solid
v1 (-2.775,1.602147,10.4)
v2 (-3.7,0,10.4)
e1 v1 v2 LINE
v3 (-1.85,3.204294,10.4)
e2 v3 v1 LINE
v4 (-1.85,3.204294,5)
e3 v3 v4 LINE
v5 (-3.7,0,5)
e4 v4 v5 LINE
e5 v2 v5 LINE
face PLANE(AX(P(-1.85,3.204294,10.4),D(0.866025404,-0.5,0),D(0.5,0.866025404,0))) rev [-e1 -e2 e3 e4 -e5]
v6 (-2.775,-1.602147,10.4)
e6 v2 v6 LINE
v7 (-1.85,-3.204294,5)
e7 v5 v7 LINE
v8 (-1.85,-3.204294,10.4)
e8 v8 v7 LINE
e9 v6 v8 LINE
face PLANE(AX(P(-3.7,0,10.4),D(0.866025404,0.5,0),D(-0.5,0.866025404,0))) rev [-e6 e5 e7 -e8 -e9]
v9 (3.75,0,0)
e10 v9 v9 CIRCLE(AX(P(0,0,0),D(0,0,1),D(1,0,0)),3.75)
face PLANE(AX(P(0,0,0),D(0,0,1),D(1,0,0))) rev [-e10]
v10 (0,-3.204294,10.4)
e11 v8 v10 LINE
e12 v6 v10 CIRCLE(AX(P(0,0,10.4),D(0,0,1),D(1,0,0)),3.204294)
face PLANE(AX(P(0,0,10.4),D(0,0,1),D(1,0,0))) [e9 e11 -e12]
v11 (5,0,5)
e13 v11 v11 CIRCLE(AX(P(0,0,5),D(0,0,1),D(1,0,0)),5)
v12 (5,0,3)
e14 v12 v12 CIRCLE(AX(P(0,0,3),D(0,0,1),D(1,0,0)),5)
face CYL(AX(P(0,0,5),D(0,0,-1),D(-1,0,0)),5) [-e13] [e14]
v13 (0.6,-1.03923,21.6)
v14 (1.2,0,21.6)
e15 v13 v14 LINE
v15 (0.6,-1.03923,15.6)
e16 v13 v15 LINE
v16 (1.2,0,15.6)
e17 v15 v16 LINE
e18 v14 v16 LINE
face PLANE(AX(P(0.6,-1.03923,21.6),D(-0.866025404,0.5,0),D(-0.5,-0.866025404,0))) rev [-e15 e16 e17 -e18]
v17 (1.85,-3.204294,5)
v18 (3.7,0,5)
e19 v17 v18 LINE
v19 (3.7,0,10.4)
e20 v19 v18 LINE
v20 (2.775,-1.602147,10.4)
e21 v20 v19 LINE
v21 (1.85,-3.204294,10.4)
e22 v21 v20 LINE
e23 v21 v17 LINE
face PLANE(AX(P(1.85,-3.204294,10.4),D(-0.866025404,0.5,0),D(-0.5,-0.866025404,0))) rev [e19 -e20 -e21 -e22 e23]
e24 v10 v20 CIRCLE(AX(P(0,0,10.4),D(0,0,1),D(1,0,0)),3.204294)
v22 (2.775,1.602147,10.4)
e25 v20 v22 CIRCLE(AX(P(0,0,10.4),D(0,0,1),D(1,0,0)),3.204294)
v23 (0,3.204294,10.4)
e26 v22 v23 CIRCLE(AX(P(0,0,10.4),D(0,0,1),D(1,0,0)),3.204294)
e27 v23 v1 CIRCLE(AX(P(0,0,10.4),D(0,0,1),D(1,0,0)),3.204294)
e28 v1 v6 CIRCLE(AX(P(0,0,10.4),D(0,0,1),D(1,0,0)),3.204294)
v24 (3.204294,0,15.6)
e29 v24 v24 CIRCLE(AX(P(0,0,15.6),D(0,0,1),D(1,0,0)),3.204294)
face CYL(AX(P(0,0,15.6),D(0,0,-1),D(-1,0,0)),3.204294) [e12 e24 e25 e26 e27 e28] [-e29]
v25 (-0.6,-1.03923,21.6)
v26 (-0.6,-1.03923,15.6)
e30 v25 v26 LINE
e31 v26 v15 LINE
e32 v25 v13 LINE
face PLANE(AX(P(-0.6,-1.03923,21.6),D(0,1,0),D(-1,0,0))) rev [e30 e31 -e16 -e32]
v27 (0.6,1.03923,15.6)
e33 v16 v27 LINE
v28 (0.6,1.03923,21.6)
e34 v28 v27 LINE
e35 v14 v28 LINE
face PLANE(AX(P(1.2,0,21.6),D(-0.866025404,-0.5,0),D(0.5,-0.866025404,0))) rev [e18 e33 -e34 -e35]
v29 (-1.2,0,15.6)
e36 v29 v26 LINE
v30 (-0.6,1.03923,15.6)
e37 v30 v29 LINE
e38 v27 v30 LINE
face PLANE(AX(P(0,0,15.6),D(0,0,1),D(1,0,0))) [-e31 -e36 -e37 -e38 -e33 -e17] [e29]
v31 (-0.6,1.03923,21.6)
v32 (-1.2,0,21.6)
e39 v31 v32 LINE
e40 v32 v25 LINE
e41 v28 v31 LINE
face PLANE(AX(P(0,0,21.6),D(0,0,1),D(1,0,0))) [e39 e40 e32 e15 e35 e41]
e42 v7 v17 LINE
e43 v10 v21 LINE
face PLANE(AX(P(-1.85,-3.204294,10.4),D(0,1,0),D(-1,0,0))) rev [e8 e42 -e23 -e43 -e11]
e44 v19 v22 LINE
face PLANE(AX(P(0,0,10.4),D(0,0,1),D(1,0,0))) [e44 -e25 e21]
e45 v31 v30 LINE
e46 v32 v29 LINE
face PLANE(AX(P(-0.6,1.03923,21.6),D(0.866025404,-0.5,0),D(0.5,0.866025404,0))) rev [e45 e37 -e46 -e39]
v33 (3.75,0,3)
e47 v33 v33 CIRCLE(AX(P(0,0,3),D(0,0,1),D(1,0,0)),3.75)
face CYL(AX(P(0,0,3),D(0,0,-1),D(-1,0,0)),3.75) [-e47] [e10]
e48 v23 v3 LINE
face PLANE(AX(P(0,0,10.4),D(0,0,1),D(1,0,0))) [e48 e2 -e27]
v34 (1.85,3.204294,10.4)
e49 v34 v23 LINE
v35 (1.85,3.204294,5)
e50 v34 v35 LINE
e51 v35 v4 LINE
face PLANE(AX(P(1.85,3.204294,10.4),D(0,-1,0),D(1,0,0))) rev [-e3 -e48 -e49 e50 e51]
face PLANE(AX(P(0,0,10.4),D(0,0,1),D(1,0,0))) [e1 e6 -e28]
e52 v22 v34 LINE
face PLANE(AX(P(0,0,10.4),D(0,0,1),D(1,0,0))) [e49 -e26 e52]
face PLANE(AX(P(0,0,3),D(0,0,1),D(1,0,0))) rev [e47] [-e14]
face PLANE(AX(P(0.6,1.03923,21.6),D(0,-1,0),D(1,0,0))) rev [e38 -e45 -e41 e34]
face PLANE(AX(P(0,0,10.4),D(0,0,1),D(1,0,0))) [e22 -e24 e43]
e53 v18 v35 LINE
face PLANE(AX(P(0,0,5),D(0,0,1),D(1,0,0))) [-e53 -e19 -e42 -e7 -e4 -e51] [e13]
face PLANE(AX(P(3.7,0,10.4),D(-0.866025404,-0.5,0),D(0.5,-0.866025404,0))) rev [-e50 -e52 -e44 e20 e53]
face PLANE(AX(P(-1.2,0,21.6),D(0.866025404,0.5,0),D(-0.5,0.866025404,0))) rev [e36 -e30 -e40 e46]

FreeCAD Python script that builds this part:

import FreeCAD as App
import Part
import Sketcher
Q = App.Units.Quantity

doc = App.newDocument("Part")
body = doc.addObject("PartDesign::Body", "Body")

# Sketch on XY plane
sketch1 = body.newObject("Sketcher::SketchObject", "Sketch")
sketch1.AttachmentSupport = (doc.getObject("XY_Plane"), [""])
sketch1.MapMode = "FlatFace"
sketch1.addGeometry(Part.Circle(App.Vector(0, 0, 0), App.Vector(0, 0, 1), 3.8), False)
sketch1.addConstraint(Sketcher.Constraint("Coincident", 0, 3, -1, 1))
sketch1.addConstraint(Sketcher.Constraint("Diameter", 0, 7.5))
pad1 = body.newObject("PartDesign::Pad", "Pad")
pad1.Profile = sketch1
pad1.Length = 3

# Sketch on XY plane
sketch2 = body.newObject("Sketcher::SketchObject", "Sketch001")
sketch2.AttachmentSupport = (doc.getObject("XY_Plane"), [""])
sketch2.MapMode = "FlatFace"
sketch2.AttachmentOffset = App.Placement(App.Vector(0, 0, 3), App.Rotation())
sketch2.addGeometry(Part.Circle(App.Vector(0, 0, 0), App.Vector(0, 0, 1), 5), False)
sketch2.addConstraint(Sketcher.Constraint("Coincident", 0, 3, -1, 1))
sketch2.addConstraint(Sketcher.Constraint("Diameter", 0, 10.0))
pad2 = body.newObject("PartDesign::Pad", "Pad001")
pad2.Profile = sketch2
pad2.Length = 2

# Sketch on XY plane
sketch3 = body.newObject("Sketcher::SketchObject", "Sketch002")
sketch3.AttachmentSupport = (doc.getObject("XY_Plane"), [""])
sketch3.MapMode = "FlatFace"
sketch3.AttachmentOffset = App.Placement(App.Vector(0, 0, 5), App.Rotation())
sketch3.addGeometry(Part.LineSegment(App.Vector(3.7, 0, 0), App.Vector(1.9, 3.2, 0)), False)
sketch3.addGeometry(Part.LineSegment(App.Vector(1.9, 3.2, 0), App.Vector(-1.9, 3.2, 0)), False)
sketch3.addGeometry(Part.LineSegment(App.Vector(-1.9, 3.2, 0), App.Vector(-3.7, 0, 0)), False)
sketch3.addGeometry(Part.LineSegment(App.Vector(-3.7, 0, 0), App.Vector(-1.9, -3.2, 0)), False)
sketch3.addGeometry(Part.LineSegment(App.Vector(-1.9, -3.2, 0), App.Vector(1.9, -3.2, 0)), False)
sketch3.addGeometry(Part.LineSegment(App.Vector(1.9, -3.2, 0), App.Vector(3.7, 0, 0)), False)
sketch3.addConstraint(Sketcher.Constraint("Coincident", 0, 2, 1, 1))
sketch3.addConstraint(Sketcher.Constraint("Coincident", 1, 2, 2, 1))
sketch3.addConstraint(Sketcher.Constraint("Coincident", 2, 2, 3, 1))
sketch3.addConstraint(Sketcher.Constraint("Coincident", 3, 2, 4, 1))
sketch3.addConstraint(Sketcher.Constraint("Coincident", 4, 2, 5, 1))
sketch3.addConstraint(Sketcher.Constraint("Coincident", 5, 2, 0, 1))
sketch3.addConstraint(Sketcher.Constraint("Horizontal", 1))
sketch3.addConstraint(Sketcher.Constraint("Horizontal", 4))
sketch3.addConstraint(Sketcher.Constraint("Symmetric", 0, 2, 3, 2, -1, 1))
sketch3.addConstraint(Sketcher.Constraint("Symmetric", 2, 2, 5, 2, -1, 1))
sketch3.addConstraint(Sketcher.Constraint("PointOnObject", 2, 2, -1))
sketch3.addConstraint(Sketcher.Constraint("Parallel", 2, 5))
sketch3.addConstraint(Sketcher.Constraint("Vertical", 1, 2, 3, 2))
sketch3.addConstraint(Sketcher.Constraint("Angle", 0, Q("120 deg")))
sketch3.addConstraint(Sketcher.Constraint("DistanceX", 1, 2, 1, 1, 3.7))
sketch3.addConstraint(Sketcher.Constraint("Distance", 0, 3.7))
pad3 = body.newObject("PartDesign::Pad", "Pad002")
pad3.Profile = sketch3
pad3.Length = 5.4

# Sketch on XY plane
sketch4 = body.newObject("Sketcher::SketchObject", "Sketch003")
sketch4.AttachmentSupport = (doc.getObject("XY_Plane"), [""])
sketch4.MapMode = "FlatFace"
sketch4.AttachmentOffset = App.Placement(App.Vector(0, 0, 10.4), App.Rotation())
sketch4.addGeometry(Part.Circle(App.Vector(0, 0, 0), App.Vector(0, 0, 1), 3.2), False)
sketch4.addConstraint(Sketcher.Constraint("Coincident", 0, 3, -1, 1))
sketch4.addConstraint(Sketcher.Constraint("Diameter", 0, 6.408588))
pad4 = body.newObject("PartDesign::Pad", "Pad003")
pad4.Profile = sketch4
pad4.Length = 5.2

# Sketch on XY plane
sketch5 = body.newObject("Sketcher::SketchObject", "Sketch004")
sketch5.AttachmentSupport = (doc.getObject("XY_Plane"), [""])
sketch5.MapMode = "FlatFace"
sketch5.AttachmentOffset = App.Placement(App.Vector(0, 0, 15.6), App.Rotation())
sketch5.addGeometry(Part.LineSegment(App.Vector(1.2, 0, 0), App.Vector(0.6, 1, 0)), False)
sketch5.addGeometry(Part.LineSegment(App.Vector(0.6, 1, 0), App.Vector(-0.6, 1, 0)), False)
sketch5.addGeometry(Part.LineSegment(App.Vector(-0.6, 1, 0), App.Vector(-1.2, 0, 0)), False)
sketch5.addGeometry(Part.LineSegment(App.Vector(-1.2, 0, 0), App.Vector(-0.6, -1, 0)), False)
sketch5.addGeometry(Part.LineSegment(App.Vector(-0.6, -1, 0), App.Vector(0.6, -1, 0)), False)
sketch5.addGeometry(Part.LineSegment(App.Vector(0.6, -1, 0), App.Vector(1.2, 0, 0)), False)
sketch5.addConstraint(Sketcher.Constraint("Coincident", 0, 2, 1, 1))
sketch5.addConstraint(Sketcher.Constraint("Coincident", 1, 2, 2, 1))
sketch5.addConstraint(Sketcher.Constraint("Coincident", 2, 2, 3, 1))
sketch5.addConstraint(Sketcher.Constraint("Coincident", 3, 2, 4, 1))
sketch5.addConstraint(Sketcher.Constraint("Coincident", 4, 2, 5, 1))
sketch5.addConstraint(Sketcher.Constraint("Coincident", 5, 2, 0, 1))
sketch5.addConstraint(Sketcher.Constraint("Horizontal", 1))
sketch5.addConstraint(Sketcher.Constraint("Horizontal", 4))
sketch5.addConstraint(Sketcher.Constraint("Symmetric", 0, 2, 3, 2, -1, 1))
sketch5.addConstraint(Sketcher.Constraint("Symmetric", 2, 2, 5, 2, -1, 1))
sketch5.addConstraint(Sketcher.Constraint("PointOnObject", 2, 2, -1))
sketch5.addConstraint(Sketcher.Constraint("Parallel", 2, 5))
sketch5.addConstraint(Sketcher.Constraint("Vertical", 1, 2, 3, 2))
sketch5.addConstraint(Sketcher.Constraint("Angle", 0, Q("120 deg")))
sketch5.addConstraint(Sketcher.Constraint("DistanceX", 1, 2, 1, 1, 1.2))
sketch5.addConstraint(Sketcher.Constraint("Distance", 0, 1.2))
pad5 = body.newObject("PartDesign::Pad", "Pad004")
pad5.Profile = sketch5
pad5.Length = 6

doc.recompute()
